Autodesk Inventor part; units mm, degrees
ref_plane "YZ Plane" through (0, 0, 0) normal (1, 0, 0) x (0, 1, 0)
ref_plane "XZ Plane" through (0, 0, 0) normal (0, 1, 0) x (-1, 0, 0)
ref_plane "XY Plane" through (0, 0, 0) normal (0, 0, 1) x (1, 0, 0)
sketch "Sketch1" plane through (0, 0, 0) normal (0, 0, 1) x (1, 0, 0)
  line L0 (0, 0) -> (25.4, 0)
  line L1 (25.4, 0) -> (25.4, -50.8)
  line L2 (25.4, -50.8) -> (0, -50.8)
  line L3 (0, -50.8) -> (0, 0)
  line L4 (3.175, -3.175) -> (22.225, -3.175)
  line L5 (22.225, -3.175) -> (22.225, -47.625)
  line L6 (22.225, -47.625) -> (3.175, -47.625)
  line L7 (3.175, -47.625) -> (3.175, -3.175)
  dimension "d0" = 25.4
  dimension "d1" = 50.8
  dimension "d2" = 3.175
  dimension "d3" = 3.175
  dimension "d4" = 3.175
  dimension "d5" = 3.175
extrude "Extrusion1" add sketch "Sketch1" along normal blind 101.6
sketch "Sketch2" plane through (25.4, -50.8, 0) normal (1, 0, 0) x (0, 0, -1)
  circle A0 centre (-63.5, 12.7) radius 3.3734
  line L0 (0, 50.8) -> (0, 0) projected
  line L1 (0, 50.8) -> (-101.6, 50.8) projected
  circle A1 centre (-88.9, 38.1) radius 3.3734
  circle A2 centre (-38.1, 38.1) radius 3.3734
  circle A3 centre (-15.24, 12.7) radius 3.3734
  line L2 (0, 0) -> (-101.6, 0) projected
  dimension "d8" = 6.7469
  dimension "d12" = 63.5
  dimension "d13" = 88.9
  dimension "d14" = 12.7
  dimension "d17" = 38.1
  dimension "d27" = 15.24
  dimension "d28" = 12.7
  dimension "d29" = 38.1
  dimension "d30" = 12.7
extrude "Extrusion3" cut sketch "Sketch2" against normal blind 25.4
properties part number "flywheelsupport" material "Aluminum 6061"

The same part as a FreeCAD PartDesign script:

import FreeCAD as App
import Part
import Sketcher
from FreeCAD import Vector
Q = App.Units.Quantity


def add_polygon(sketch, points):
    """Adds a closed chain of lines whose ends are joined by coincident constraints."""
    first, n = sketch.GeometryCount, len(points)
    for a, b in zip(points, points[1:] + points[:1]):
        sketch.addGeometry(Part.LineSegment(App.Vector(*a, 0), App.Vector(*b, 0)), False)
    for i in range(n):
        sketch.addConstraint(Sketcher.Constraint("Coincident", first + i, 2, first + (i + 1) % n, 1))

doc = App.newDocument("Part")
body = doc.addObject("PartDesign::Body", "Body")

# Sketch on XY plane
sketch1 = body.newObject("Sketcher::SketchObject", "Sketch")
sketch1.AttachmentSupport = (doc.getObject("XY_Plane"), [""])
sketch1.MapMode = "FlatFace"
add_polygon(sketch1, [(25.4, 0), (0, 0), (0, -50.8), (25.4, -50.8)])  # lines 0-3
add_polygon(sketch1, [(3.175, -47.625), (3.175, -3.175), (22.225, -3.175), (22.225, -47.625)])  # lines 4-7
sketch1.addConstraint(Sketcher.Constraint("Horizontal", 0))
sketch1.addConstraint(Sketcher.Constraint("Vertical", 1))
sketch1.addConstraint(Sketcher.Constraint("Horizontal", 2))
sketch1.addConstraint(Sketcher.Constraint("Vertical", 3))
sketch1.addConstraint(Sketcher.Constraint("Vertical", 4))
sketch1.addConstraint(Sketcher.Constraint("Horizontal", 5))
sketch1.addConstraint(Sketcher.Constraint("Vertical", 6))
sketch1.addConstraint(Sketcher.Constraint("Horizontal", 7))
sketch1.addConstraint(Sketcher.Constraint("Coincident", 0, 2, -1, 1))
sketch1.addConstraint(Sketcher.Constraint("DistanceX", 0, 2, 0, 1, Q("1 in")))
sketch1.addConstraint(Sketcher.Constraint("DistanceY", 1, 2, 1, 1, Q("2 in")))
sketch1.addConstraint(Sketcher.Constraint("DistanceX", -1, 1, 4, 2, Q("0.125 in")))
sketch1.addConstraint(Sketcher.Constraint("DistanceY", 4, 2, -1, 1, Q("0.125 in")))
sketch1.addConstraint(Sketcher.Constraint("DistanceX", 5, 2, 3, 2, Q("0.125 in")))
sketch1.addConstraint(Sketcher.Constraint("DistanceY", 2, 2, 6, 2, Q("0.125 in")))
pad1 = body.newObject("PartDesign::Pad", "Pad")
pad1.Profile = sketch1
pad1.Length = Q("4 in")

# Sketch on YZ plane
sketch2 = body.newObject("Sketcher::SketchObject", "Sketch001")
sketch2.AttachmentSupport = (doc.getObject("YZ_Plane"), [""])
sketch2.MapMode = "FlatFace"
sketch2.AttachmentOffset = App.Placement(Vector(0, 0, 1 * 25.4), App.Rotation())
sketch2.addGeometry(Part.Circle(Vector(-38.1, 63.5, 0), Vector(0, 0, 1), 3.3734), False)
sketch2.addGeometry(Part.Circle(Vector(-12.7, 88.9, 0), Vector(0, 0, 1), 3.3734), False)
sketch2.addGeometry(Part.Circle(Vector(-12.7, 38.1, 0), Vector(0, 0, 1), 3.3734), False)
sketch2.addGeometry(Part.Circle(Vector(-38.1, 15.24, 0), Vector(0, 0, 1), 3.3734), False)
sketch2.addConstraint(Sketcher.Constraint("Equal", 0, 1))
sketch2.addConstraint(Sketcher.Constraint("Equal", 1, 2))
sketch2.addConstraint(Sketcher.Constraint("Equal", 2, 3))
sketch2.addConstraint(Sketcher.Constraint("Vertical", 1, 3, 2, 3))
sketch2.addConstraint(Sketcher.Constraint("Vertical", 0, 3, 3, 3))
sketch2.addConstraint(Sketcher.Constraint("Diameter", 0, Q("0.265622 in")))
sketch2.addConstraint(Sketcher.Constraint("DistanceX", 0, 3, -1, 1, Q("1.5 in")))
sketch2.addConstraint(Sketcher.Constraint("DistanceY", -1, 1, 0, 3, Q("2.5 in")))
sketch2.addConstraint(Sketcher.Constraint("DistanceX", 1, 3, -1, 1, Q("0.5 in")))
sketch2.addConstraint(Sketcher.Constraint("DistanceY", -1, 1, 1, 3, Q("3.5 in")))
sketch2.addConstraint(Sketcher.Constraint("DistanceY", -1, 1, 2, 3, Q("1.5 in")))
sketch2.addConstraint(Sketcher.Constraint("DistanceY", -1, 1, 3, 3, Q("0.6 in")))
pocket1 = body.newObject("PartDesign::Pocket", "Pocket")
pocket1.Profile = sketch2
pocket1.Length = Q("1 in")

doc.recompute()
